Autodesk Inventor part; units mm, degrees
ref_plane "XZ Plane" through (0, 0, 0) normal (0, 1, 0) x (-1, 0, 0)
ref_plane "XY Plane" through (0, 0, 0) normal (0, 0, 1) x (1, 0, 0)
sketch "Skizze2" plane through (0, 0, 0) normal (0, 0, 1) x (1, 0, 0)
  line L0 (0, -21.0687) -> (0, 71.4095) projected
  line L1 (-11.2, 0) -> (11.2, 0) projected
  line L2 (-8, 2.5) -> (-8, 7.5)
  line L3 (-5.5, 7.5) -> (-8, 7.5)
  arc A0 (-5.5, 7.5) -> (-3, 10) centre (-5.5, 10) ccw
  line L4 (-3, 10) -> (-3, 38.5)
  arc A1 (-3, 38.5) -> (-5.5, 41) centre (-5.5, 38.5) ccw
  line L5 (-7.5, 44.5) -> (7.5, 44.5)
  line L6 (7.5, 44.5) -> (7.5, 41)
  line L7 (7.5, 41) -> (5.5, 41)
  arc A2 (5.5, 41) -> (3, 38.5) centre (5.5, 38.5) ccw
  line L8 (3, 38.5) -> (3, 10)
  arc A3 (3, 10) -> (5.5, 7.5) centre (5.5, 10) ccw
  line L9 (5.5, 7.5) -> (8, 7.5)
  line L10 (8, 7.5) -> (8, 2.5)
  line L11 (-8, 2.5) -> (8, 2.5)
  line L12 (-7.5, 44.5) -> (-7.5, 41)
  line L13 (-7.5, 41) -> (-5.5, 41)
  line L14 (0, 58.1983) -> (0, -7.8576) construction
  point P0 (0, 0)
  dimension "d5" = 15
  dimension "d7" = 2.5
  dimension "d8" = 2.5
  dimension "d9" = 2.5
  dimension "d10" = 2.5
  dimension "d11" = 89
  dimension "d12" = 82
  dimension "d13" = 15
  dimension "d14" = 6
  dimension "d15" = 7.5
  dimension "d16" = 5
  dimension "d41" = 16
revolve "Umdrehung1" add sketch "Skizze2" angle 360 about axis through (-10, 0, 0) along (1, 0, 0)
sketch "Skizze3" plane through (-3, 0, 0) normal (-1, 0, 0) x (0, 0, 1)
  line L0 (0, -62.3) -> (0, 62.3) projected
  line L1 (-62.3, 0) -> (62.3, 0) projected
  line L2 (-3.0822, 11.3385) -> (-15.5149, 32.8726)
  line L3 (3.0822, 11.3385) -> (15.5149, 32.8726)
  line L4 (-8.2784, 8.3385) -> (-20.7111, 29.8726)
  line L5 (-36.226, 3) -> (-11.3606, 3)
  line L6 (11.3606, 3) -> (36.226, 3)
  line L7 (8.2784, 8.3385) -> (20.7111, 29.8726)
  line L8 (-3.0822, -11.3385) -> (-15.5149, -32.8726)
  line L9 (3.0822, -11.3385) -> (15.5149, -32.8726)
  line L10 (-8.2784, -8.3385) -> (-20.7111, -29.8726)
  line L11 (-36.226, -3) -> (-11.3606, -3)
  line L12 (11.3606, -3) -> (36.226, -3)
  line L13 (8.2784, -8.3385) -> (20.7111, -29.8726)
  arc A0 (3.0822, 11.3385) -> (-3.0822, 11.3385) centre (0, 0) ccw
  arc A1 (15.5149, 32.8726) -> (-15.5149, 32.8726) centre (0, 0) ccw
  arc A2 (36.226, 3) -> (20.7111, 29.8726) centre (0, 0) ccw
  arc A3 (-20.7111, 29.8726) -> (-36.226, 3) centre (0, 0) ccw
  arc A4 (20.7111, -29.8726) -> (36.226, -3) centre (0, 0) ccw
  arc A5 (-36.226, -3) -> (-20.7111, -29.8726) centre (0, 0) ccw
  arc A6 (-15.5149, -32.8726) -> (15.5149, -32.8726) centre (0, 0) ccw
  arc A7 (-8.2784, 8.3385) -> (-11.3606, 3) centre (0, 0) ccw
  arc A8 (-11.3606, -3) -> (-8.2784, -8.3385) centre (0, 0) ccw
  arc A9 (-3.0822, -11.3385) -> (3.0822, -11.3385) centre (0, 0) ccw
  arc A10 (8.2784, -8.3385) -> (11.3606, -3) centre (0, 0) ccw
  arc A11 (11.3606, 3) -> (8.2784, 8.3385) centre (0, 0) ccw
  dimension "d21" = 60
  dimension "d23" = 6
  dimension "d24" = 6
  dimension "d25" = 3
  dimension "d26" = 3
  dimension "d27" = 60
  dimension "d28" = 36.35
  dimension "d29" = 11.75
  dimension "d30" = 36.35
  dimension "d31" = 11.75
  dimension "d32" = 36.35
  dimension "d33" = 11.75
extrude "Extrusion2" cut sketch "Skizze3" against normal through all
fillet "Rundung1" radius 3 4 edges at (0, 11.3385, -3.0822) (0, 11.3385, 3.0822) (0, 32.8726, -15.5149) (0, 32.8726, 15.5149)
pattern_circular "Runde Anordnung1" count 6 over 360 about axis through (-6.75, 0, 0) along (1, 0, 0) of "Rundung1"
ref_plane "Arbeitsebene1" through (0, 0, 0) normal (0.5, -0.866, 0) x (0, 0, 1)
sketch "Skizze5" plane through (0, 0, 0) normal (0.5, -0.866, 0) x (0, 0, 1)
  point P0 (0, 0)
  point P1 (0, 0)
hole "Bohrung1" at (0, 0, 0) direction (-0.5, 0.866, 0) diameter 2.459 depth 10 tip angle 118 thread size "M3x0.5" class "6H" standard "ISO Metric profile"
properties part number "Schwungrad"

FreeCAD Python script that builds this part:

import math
import FreeCAD as App
import Part
import Sketcher

V = App.Vector
Q = App.Units.Quantity


def edges_at(feature, points):
    """Names of the edges that pass closest to the given points."""
    edges = feature.Shape.Edges
    near = lambda p: min(range(len(edges)), key=lambda i: edges[i].distToShape(Part.Vertex(*p))[0])
    return sorted({f"Edge{near(p) + 1}" for p in points})

doc = App.newDocument("Part")
params = doc.addObject("Spreadsheet::Sheet", "Params")
for row, (alias, value) in enumerate([
    ("sketch1_radius", "2.5 mm"),
    ("sketch1_width", "16 mm"),
    ("sketch1_width2", "15 mm"),
    ("sketch1_height", "5 mm"),
    ("sketch1_width3", "2.5 mm"),
    ("revolution_angle", "360 deg"),
    ("sketch2_radius", "36.35 mm"),
    ("sketch2_radius2", "11.75 mm"),
    ("fillet_radius", "3 mm"),
    ("hole_diameter", "2.459 mm"),
    ("hole_depth", "10 mm"),
], start=1):
    params.set(f"A{row}", alias)
    params.set(f"B{row}", "=" + value)
    params.setAlias(f"B{row}", alias)

body = doc.addObject("PartDesign::Body", "Body")

# Sketch on XY plane
sketch1 = body.newObject("Sketcher::SketchObject", "Sketch")
sketch1.AttachmentSupport = (doc.getObject("XY_Plane"), [""])
sketch1.MapMode = "FlatFace"
sketch1.addGeometry([
    Part.LineSegment(V(-8, 2.5, 0), V(8, 2.5, 0)),  # 0
    Part.LineSegment(V(8, 2.5, 0), V(8, 7.5, 0)),  # 1
    Part.LineSegment(V(8, 7.5, 0), V(5.5, 7.5, 0)),  # 2
    Part.ArcOfCircle(Part.Circle(V(5.5, 10, 0), V(0, 0, 1), 2.5), math.radians(180), math.radians(270)),  # 3
    Part.LineSegment(V(3, 10, 0), V(3, 38.5, 0)),  # 4
    Part.ArcOfCircle(Part.Circle(V(5.5, 38.5, 0), V(0, 0, 1), 2.5), math.radians(90), math.radians(180)),  # 5
    Part.LineSegment(V(5.5, 41, 0), V(7.5, 41, 0)),  # 6
    Part.LineSegment(V(7.5, 41, 0), V(7.5, 44.5, 0)),  # 7
    Part.LineSegment(V(7.5, 44.5, 0), V(-7.5, 44.5, 0)),  # 8
    Part.LineSegment(V(-7.5, 44.5, 0), V(-7.5, 41, 0)),  # 9
    Part.LineSegment(V(-7.5, 41, 0), V(-5.5, 41, 0)),  # 10
    Part.ArcOfCircle(Part.Circle(V(-5.5, 38.5, 0), V(0, 0, 1), 2.5), math.radians(0), math.radians(90)),  # 11
    Part.LineSegment(V(-3, 38.5, 0), V(-3, 10, 0)),  # 12
    Part.ArcOfCircle(Part.Circle(V(-5.5, 10, 0), V(0, 0, 1), 2.5), math.radians(-90), math.radians(0)),  # 13
    Part.LineSegment(V(-5.5, 7.5, 0), V(-8, 7.5, 0)),  # 14
    Part.LineSegment(V(-8, 7.5, 0), V(-8, 2.5, 0)),  # 15
], False)
sketch1.addConstraint([
    Sketcher.Constraint("Coincident", 0, 2, 1, 1),
    Sketcher.Constraint("Coincident", 1, 2, 2, 1),
    Sketcher.Constraint("Tangent", 2, 2, 3, 2),
    Sketcher.Constraint("Tangent", 3, 1, 4, 1),
    Sketcher.Constraint("Tangent", 4, 2, 5, 2),
    Sketcher.Constraint("Tangent", 5, 1, 6, 1),
    Sketcher.Constraint("Coincident", 6, 2, 7, 1),
    Sketcher.Constraint("Coincident", 7, 2, 8, 1),
    Sketcher.Constraint("Coincident", 8, 2, 9, 1),
    Sketcher.Constraint("Coincident", 9, 2, 10, 1),
    Sketcher.Constraint("Tangent", 10, 2, 11, 2),
    Sketcher.Constraint("Tangent", 11, 1, 12, 1),
    Sketcher.Constraint("Tangent", 12, 2, 13, 2),
    Sketcher.Constraint("Tangent", 13, 1, 14, 1),
    Sketcher.Constraint("Coincident", 14, 2, 15, 1),
    Sketcher.Constraint("Coincident", 15, 2, 0, 1),
    Sketcher.Constraint("Horizontal", 0),
    Sketcher.Constraint("Vertical", 1),
    Sketcher.Constraint("Horizontal", 2),
    Sketcher.Constraint("Vertical", 4),
    Sketcher.Constraint("Horizontal", 6),
    Sketcher.Constraint("Vertical", 7),
    Sketcher.Constraint("Horizontal", 8),
    Sketcher.Constraint("Vertical", 9),
    Sketcher.Constraint("Horizontal", 10),
    Sketcher.Constraint("Vertical", 12),
    Sketcher.Constraint("Horizontal", 14),
    Sketcher.Constraint("Vertical", 15),
    Sketcher.Constraint("Equal", 3, 5),
    Sketcher.Constraint("Equal", 5, 11),
    Sketcher.Constraint("Equal", 11, 13),
    Sketcher.Constraint("Symmetric", 5, 3, 11, 3, -2),
    Sketcher.Constraint("Symmetric", 1, 2, 14, 2, -2),
    Sketcher.Constraint("Equal", 6, 10),
    Sketcher.Constraint("Radius", 3, 2.5),
    Sketcher.Constraint("DistanceX", 0, 1, 0, 2, 16.0),
    Sketcher.Constraint("DistanceX", 8, 2, 8, 1, 15.0),
    Sketcher.Constraint("DistanceY", 1, 1, 1, 2, 5.0),
    Sketcher.Constraint("DistanceX", 2, 2, 2, 1, 2.5),
    Sketcher.Constraint("DistanceY", 5, 3, 7, 2, 6.0),
    Sketcher.Constraint("DistanceY", -1, 1, 0, 2, 2.5),
    Sketcher.Constraint("DistanceY", 4, 1, 4, 2, 28.5),
])
sketch1.setExpression("Constraints[34]", "Params.sketch1_radius")
sketch1.setExpression("Constraints[35]", "Params.sketch1_width")
sketch1.setExpression("Constraints[36]", "Params.sketch1_width2")
sketch1.setExpression("Constraints[37]", "Params.sketch1_height")
sketch1.setExpression("Constraints[38]", "Params.sketch1_width3")
revolution = body.newObject("PartDesign::Revolution", "Revolution")
revolution.Profile = sketch1
revolution.ReferenceAxis = (sketch1, ["H_Axis"])
revolution.setExpression("Angle", "Params.revolution_angle")

# Sketch on YZ plane
sketch2 = body.newObject("Sketcher::SketchObject", "Sketch001")
sketch2.AttachmentSupport = (doc.getObject("YZ_Plane"), [""])
sketch2.MapMode = "FlatFace"
sketch2.AttachmentOffset = App.Placement(V(0, 0, -3), App.Rotation())
sketch2.addGeometry([
    Part.ArcOfCircle(Part.Circle(V(0, 0, 0), V(0, 0, 1), 36), math.radians(155), math.radians(205)),  # 0
    Part.LineSegment(V(-33, 16, 0), V(-11, 3, 0)),  # 1
    Part.ArcOfCircle(Part.Circle(V(0, 0, 0), V(0, 0, 1), 12), math.radians(165), math.radians(195)),  # 2
    Part.LineSegment(V(-11, -3, 0), V(-33, -16, 0)),  # 3
    Part.ArcOfCircle(Part.Circle(V(0, 0, 0), V(0, 0, 1), 12), math.radians(-15), math.radians(15)),  # 4
    Part.LineSegment(V(11, 3, 0), V(33, 16, 0)),  # 5
    Part.ArcOfCircle(Part.Circle(V(0, 0, 0), V(0, 0, 1), 36), math.radians(-25), math.radians(25)),  # 6
    Part.LineSegment(V(33, -16, 0), V(11, -3, 0)),  # 7
    Part.ArcOfCircle(Part.Circle(V(0, 0, 0), V(0, 0, 1), 12), math.radians(-75), math.radians(-45)),  # 8
    Part.LineSegment(V(8, -8, 0), V(30, -21, 0)),  # 9
    Part.ArcOfCircle(Part.Circle(V(0, 0, 0), V(0, 0, 1), 36), math.radians(-85), math.radians(-35)),  # 10
    Part.LineSegment(V(3, -36, 0), V(3, -11, 0)),  # 11
    Part.ArcOfCircle(Part.Circle(V(0, 0, 0), V(0, 0, 1), 12), math.radians(45), math.radians(75)),  # 12
    Part.LineSegment(V(3, 11, 0), V(3, 36, 0)),  # 13
    Part.ArcOfCircle(Part.Circle(V(0, 0, 0), V(0, 0, 1), 36), math.radians(35), math.radians(85)),  # 14
    Part.LineSegment(V(30, 21, 0), V(8, 8, 0)),  # 15
    Part.LineSegment(V(-30, -21, 0), V(-8, -8, 0)),  # 16
    Part.ArcOfCircle(Part.Circle(V(0, 0, 0), V(0, 0, 1), 12), math.radians(-135), math.radians(-105)),  # 17
    Part.LineSegment(V(-3, -11, 0), V(-3, -36, 0)),  # 18
    Part.ArcOfCircle(Part.Circle(V(0, 0, 0), V(0, 0, 1), 36), math.radians(-145), math.radians(-95)),  # 19
    Part.LineSegment(V(-3, 36, 0), V(-3, 11, 0)),  # 20
    Part.ArcOfCircle(Part.Circle(V(0, 0, 0), V(0, 0, 1), 12), math.radians(105), math.radians(135)),  # 21
    Part.LineSegment(V(-8, 8, 0), V(-30, 21, 0)),  # 22
    Part.ArcOfCircle(Part.Circle(V(0, 0, 0), V(0, 0, 1), 36), math.radians(95), math.radians(145)),  # 23
], False)
sketch2.addConstraint([
    Sketcher.Constraint("Coincident", 0, 1, 1, 1),
    Sketcher.Constraint("Coincident", 1, 2, 2, 1),
    Sketcher.Constraint("Coincident", 2, 2, 3, 1),
    Sketcher.Constraint("Coincident", 3, 2, 0, 2),
    Sketcher.Constraint("Coincident", 4, 2, 5, 1),
    Sketcher.Constraint("Coincident", 5, 2, 6, 2),
    Sketcher.Constraint("Coincident", 6, 1, 7, 1),
    Sketcher.Constraint("Coincident", 7, 2, 4, 1),
    Sketcher.Constraint("Coincident", 8, 2, 9, 1),
    Sketcher.Constraint("Coincident", 9, 2, 10, 2),
    Sketcher.Constraint("Coincident", 10, 1, 11, 1),
    Sketcher.Constraint("Coincident", 11, 2, 8, 1),
    Sketcher.Constraint("Coincident", 12, 2, 13, 1),
    Sketcher.Constraint("Coincident", 13, 2, 14, 2),
    Sketcher.Constraint("Coincident", 14, 1, 15, 1),
    Sketcher.Constraint("Coincident", 15, 2, 12, 1),
    Sketcher.Constraint("Coincident", 16, 2, 17, 1),
    Sketcher.Constraint("Coincident", 17, 2, 18, 1),
    Sketcher.Constraint("Coincident", 18, 2, 19, 2),
    Sketcher.Constraint("Coincident", 19, 1, 16, 1),
    Sketcher.Constraint("Coincident", 20, 2, 21, 1),
    Sketcher.Constraint("Coincident", 21, 2, 22, 1),
    Sketcher.Constraint("Coincident", 22, 2, 23, 2),
    Sketcher.Constraint("Coincident", 23, 1, 20, 1),
    Sketcher.Constraint("Vertical", 11),
    Sketcher.Constraint("Vertical", 13),
    Sketcher.Constraint("Vertical", 18),
    Sketcher.Constraint("Vertical", 20),
    Sketcher.Constraint("Coincident", 0, 3, -1, 1),
    Sketcher.Constraint("Coincident", 2, 3, -1, 1),
    Sketcher.Constraint("Coincident", 4, 3, -1, 1),
    Sketcher.Constraint("Coincident", 6, 3, -1, 1),
    Sketcher.Constraint("Coincident", 8, 3, -1, 1),
    Sketcher.Constraint("Coincident", 10, 3, -1, 1),
    Sketcher.Constraint("Coincident", 12, 3, -1, 1),
    Sketcher.Constraint("Coincident", 14, 3, -1, 1),
    Sketcher.Constraint("Coincident", 17, 3, -1, 1),
    Sketcher.Constraint("Coincident", 19, 3, -1, 1),
    Sketcher.Constraint("Coincident", 21, 3, -1, 1),
    Sketcher.Constraint("Coincident", 23, 3, -1, 1),
    Sketcher.Constraint("Equal", 2, 4),
    Sketcher.Constraint("Equal", 0, 6),
    Sketcher.Constraint("Equal", 4, 8),
    Sketcher.Constraint("Equal", 6, 10),
    Sketcher.Constraint("Equal", 8, 12),
    Sketcher.Constraint("Equal", 10, 14),
    Sketcher.Constraint("Equal", 12, 17),
    Sketcher.Constraint("Equal", 14, 19),
    Sketcher.Constraint("Equal", 17, 21),
    Sketcher.Constraint("Equal", 19, 23),
    Sketcher.Constraint("Parallel", 3, 5),
    Sketcher.Constraint("Parallel", 1, 7),
    Sketcher.Constraint("Parallel", 7, 9),
    Sketcher.Constraint("Parallel", 5, 15),
    Sketcher.Constraint("Parallel", 15, 16),
    Sketcher.Constraint("Parallel", 9, 22),
    Sketcher.Constraint("Horizontal", 1, 2, 4, 2),
    Sketcher.Constraint("Horizontal", 0, 1, 5, 2),
    Sketcher.Constraint("Horizontal", 3, 2, 6, 1),
    Sketcher.Constraint("Horizontal", 8, 2, 16, 2),
    Sketcher.Constraint("Horizontal", 11, 2, 17, 2),
    Sketcher.Constraint("Horizontal", 12, 2, 20, 2),
    Sketcher.Constraint("Horizontal", 15, 2, 21, 2),
    Sketcher.Constraint("Vertical", 1, 2, 2, 2),
    Sketcher.Constraint("Vertical", 11, 2, 12, 2),
    Sketcher.Constraint("Vertical", 9, 2, 14, 1),
    Sketcher.Constraint("Equal", 7, 9),
    Sketcher.Constraint("Radius", 0, 36.35),
    Sketcher.Constraint("Radius", 2, 11.75),
    Sketcher.Constraint("DistanceX", -1, 1, 10, 1, 3.0),
    Sketcher.Constraint("DistanceX", 8, 2, 7, 2, 3.0),
    Sketcher.Constraint("Angle", 1, Q("-30 deg")),
])
sketch2.setExpression("Constraints[67]", "Params.sketch2_radius")
sketch2.setExpression("Constraints[68]", "Params.sketch2_radius2")
pocket1 = body.newObject("PartDesign::Pocket", "Pocket")
pocket1.Profile = sketch2
pocket1.Type = "ThroughAll"
pocket1.Reversed = True
doc.recompute()

fillet = body.newObject("PartDesign::Fillet", "Fillet")
fillet.Base = (pocket1, edges_at(pocket1, [
    (0, 11.338, -3.082),
    (0, 11.338, 3.082),
    (0, 32.873, -15.515),
    (0, 32.873, 15.515),
]))
fillet.setExpression("Radius", "Params.fillet_radius")
doc.recompute()

polarpattern = body.newObject("PartDesign::PolarPattern", "PolarPattern")
polarpattern.Originals = [fillet]
polarpattern.Axis = (doc.getObject("X_Axis"), [""])
polarpattern.Angle = 360
polarpattern.Occurrences = 6
body.Tip = polarpattern

# Sketch on an angled plane
sketch3 = body.newObject("Sketcher::SketchObject", "Sketch002")
sketch3.Placement = App.Placement(V(0, 0, 0), App.Rotation(V(0.866025404, 0.5, 0), V(0, 0, 1), V(0.5, -0.866025404, 0), "ZXY"))
sketch3.addGeometry(Part.Circle(V(0, 0, 0), V(0, 0, 1), 1.2), False)
sketch3.addConstraint([
    Sketcher.Constraint("Coincident", 0, 3, -1, 1),
    Sketcher.Constraint("Diameter", 0, 2.459),
])
doc.recompute()
hole = body.newObject("PartDesign::Hole", "Hole")
hole.Profile = sketch3
hole.ThreadType = "None"
hole.setExpression("Diameter", "Params.hole_diameter")
hole.DepthType = "Dimension"
hole.setExpression("Depth", "Params.hole_depth")
hole.DrillPoint = "Angled"
hole.DrillPointAngle = 118

doc.recompute()
